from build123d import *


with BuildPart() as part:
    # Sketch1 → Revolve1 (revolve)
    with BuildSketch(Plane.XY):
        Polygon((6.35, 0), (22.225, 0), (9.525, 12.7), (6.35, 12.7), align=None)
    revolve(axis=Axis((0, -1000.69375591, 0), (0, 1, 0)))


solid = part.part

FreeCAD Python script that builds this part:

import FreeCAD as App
import Part
import Sketcher

V = App.Vector
Q = App.Units.Quantity


def add_polygon(sketch, points):
    """Adds a closed chain of lines whose ends are joined by coincident constraints."""
    first, n = sketch.GeometryCount, len(points)
    for a, b in zip(points, points[1:] + points[:1]):
        sketch.addGeometry(Part.LineSegment(App.Vector(*a, 0), App.Vector(*b, 0)), False)
    for i in range(n):
        sketch.addConstraint(Sketcher.Constraint("Coincident", first + i, 2, first + (i + 1) % n, 1))

doc = App.newDocument("Part")
body = doc.addObject("PartDesign::Body", "Body")

sketch1 = body.newObject("Sketcher::SketchObject", "Sketch")
sketch1.AttachmentSupport = (doc.getObject("XY_Plane"), [""])
sketch1.MapMode = "FlatFace"
add_polygon(sketch1, [(6.3, 0), (22.2, 0), (9.5, 12.7), (6.3, 12.7)])
sketch1.addConstraint([
    Sketcher.Constraint("Horizontal", 0),
    Sketcher.Constraint("Horizontal", 2),
    Sketcher.Constraint("Vertical", 3),
    Sketcher.Constraint("PointOnObject", 0, 2, -1),
    Sketcher.Constraint("DistanceY", 3, 2, 3, 1, Q("0.5 in")),
    Sketcher.Constraint("Angle", 1, Q("135 deg")),
    Sketcher.Constraint("DistanceX", 0, 1, 0, 2, Q("0.625 in")),
    Sketcher.Constraint("DistanceX", -1, 1, 2, 2, Q("0.25 in")),
])
revolution = body.newObject("PartDesign::Revolution", "Revolution")
revolution.Profile = sketch1
revolution.ReferenceAxis = (sketch1, ["V_Axis"])
revolution.Angle = 360

doc.recompute()
